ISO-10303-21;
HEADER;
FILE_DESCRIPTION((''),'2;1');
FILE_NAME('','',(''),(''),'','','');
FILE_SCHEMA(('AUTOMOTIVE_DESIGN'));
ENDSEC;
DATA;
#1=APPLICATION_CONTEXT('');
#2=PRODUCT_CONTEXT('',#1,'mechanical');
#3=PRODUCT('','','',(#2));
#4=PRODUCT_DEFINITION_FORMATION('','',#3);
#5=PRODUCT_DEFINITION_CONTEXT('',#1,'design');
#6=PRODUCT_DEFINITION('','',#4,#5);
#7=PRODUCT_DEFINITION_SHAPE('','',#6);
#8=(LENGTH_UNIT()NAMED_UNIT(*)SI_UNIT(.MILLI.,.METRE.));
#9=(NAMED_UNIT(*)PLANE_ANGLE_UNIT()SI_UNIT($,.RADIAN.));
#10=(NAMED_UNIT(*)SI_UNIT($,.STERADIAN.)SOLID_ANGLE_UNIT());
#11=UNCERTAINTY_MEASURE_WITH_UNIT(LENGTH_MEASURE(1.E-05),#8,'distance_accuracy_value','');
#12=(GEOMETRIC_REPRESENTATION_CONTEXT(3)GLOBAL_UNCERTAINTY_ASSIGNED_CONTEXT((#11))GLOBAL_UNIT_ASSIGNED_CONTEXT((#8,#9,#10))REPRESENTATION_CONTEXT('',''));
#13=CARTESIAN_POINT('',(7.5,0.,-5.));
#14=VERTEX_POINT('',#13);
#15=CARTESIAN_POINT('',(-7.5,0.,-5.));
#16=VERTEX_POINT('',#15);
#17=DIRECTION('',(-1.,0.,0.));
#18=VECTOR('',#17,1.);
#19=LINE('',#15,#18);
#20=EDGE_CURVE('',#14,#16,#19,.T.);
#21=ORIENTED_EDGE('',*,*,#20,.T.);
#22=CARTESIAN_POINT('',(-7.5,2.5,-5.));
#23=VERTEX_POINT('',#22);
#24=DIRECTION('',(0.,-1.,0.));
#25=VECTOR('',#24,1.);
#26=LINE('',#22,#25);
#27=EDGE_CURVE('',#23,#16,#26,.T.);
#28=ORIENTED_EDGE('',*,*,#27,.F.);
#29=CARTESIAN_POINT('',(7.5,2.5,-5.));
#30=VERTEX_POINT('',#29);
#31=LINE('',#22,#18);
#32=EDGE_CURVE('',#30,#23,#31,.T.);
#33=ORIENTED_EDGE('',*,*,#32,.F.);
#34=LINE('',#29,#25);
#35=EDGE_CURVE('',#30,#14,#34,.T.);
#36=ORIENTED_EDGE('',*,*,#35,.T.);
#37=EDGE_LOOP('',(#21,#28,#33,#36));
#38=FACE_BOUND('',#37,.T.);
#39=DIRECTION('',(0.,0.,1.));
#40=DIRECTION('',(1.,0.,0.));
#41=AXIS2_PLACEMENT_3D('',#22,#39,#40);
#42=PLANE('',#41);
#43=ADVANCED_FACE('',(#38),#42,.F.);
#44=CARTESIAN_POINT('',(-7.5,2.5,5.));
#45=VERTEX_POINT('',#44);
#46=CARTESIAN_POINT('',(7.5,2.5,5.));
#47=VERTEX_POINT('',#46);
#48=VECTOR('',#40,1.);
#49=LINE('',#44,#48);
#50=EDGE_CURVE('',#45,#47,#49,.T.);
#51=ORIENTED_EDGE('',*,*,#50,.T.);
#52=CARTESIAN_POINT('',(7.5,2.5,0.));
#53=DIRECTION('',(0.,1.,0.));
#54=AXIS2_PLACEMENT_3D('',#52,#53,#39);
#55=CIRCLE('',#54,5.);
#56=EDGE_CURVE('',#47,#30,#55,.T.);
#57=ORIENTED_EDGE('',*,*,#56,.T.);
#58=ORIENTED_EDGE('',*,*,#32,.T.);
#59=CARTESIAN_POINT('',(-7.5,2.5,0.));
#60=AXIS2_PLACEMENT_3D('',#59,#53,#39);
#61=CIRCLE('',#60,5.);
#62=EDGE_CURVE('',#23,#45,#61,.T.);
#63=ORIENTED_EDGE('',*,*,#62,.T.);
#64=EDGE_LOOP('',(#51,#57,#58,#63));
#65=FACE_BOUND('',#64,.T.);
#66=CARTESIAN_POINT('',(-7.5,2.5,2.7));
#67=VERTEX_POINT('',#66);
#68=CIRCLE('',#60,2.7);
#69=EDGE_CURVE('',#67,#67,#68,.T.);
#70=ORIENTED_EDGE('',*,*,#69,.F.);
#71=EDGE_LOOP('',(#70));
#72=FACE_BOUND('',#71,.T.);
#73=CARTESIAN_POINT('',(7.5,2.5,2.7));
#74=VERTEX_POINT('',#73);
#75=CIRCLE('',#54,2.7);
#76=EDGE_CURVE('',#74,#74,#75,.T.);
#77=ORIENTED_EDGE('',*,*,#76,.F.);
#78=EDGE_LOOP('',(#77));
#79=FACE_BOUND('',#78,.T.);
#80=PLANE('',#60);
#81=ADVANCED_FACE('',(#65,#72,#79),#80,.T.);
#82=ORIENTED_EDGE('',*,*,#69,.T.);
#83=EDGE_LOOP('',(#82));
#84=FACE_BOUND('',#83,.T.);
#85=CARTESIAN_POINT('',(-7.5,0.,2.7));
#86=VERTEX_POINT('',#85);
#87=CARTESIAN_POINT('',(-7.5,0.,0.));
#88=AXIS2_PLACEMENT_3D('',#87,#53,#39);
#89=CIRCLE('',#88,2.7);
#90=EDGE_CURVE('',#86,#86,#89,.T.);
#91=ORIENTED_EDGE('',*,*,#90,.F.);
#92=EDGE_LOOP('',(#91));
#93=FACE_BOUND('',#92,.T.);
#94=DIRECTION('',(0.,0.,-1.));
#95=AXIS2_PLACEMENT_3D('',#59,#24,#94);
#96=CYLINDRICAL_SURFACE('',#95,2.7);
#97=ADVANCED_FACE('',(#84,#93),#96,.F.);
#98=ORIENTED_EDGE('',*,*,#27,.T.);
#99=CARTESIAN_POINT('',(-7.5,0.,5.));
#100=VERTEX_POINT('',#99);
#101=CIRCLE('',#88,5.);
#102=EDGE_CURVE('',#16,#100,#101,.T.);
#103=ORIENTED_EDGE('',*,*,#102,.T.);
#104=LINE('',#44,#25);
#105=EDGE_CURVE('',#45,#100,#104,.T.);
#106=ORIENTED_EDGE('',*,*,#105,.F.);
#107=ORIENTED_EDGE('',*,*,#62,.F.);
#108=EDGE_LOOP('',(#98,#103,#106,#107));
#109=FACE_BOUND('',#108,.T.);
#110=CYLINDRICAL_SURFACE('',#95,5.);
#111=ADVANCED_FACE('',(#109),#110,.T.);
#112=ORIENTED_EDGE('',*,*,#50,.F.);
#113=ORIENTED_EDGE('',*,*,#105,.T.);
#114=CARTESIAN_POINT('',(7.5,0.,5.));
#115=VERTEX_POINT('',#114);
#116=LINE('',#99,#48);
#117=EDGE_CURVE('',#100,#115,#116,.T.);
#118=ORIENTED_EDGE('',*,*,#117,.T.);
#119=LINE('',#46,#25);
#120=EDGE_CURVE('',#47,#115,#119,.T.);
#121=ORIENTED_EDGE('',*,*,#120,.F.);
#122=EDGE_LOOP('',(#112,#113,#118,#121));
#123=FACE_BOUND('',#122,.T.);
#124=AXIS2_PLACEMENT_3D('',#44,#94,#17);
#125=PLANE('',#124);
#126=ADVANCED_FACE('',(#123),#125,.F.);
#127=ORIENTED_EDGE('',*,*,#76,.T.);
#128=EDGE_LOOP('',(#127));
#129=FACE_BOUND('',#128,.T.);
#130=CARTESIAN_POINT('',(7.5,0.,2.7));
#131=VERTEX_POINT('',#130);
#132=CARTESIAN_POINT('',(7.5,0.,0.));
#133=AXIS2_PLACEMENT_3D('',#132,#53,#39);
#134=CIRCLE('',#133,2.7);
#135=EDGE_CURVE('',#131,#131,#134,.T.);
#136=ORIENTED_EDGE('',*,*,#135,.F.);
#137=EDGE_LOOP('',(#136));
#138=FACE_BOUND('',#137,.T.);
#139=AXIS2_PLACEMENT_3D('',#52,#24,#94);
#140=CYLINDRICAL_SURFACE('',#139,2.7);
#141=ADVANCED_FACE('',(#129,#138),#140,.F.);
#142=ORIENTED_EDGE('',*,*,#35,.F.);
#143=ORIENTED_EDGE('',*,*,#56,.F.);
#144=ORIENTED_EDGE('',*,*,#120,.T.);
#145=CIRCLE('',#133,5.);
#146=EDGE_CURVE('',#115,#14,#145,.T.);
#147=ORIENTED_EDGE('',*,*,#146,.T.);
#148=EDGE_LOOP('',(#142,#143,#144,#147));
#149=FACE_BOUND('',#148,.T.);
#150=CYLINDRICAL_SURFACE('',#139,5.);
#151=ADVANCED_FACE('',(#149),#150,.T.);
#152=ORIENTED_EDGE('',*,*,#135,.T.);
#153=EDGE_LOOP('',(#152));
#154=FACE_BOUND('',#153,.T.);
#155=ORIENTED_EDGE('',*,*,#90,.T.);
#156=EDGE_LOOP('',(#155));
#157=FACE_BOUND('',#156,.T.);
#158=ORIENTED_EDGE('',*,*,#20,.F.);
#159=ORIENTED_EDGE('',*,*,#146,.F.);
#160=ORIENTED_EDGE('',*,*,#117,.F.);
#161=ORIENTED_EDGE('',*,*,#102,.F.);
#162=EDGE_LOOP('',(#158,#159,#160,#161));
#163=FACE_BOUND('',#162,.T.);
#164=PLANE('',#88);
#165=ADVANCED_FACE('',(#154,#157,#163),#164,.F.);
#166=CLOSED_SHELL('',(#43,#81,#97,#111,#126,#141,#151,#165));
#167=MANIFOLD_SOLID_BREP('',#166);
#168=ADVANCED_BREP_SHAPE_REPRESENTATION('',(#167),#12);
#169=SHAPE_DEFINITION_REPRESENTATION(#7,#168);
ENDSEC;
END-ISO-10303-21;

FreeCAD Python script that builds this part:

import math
import FreeCAD as App
import Part
import Sketcher

doc = App.newDocument("Part")
params = doc.addObject("Spreadsheet::Sheet", "Params")
for row, (alias, value) in enumerate([
    ("sketch1_radius", "5 mm"),
    ("sketch1_diameter", "5.4 mm"),
    ("sketch1_width", "15 mm"),
    ("pad1_length", "2.5 mm"),
], start=1):
    params.set(f"A{row}", alias)
    params.set(f"B{row}", "=" + value)
    params.setAlias(f"B{row}", alias)

body = doc.addObject("PartDesign::Body", "Body")

# Sketch on XZ plane
sketch1 = doc.addObject("Sketcher::SketchObject", "Sketch")
body.addObject(sketch1)
sketch1.AttachmentSupport = (doc.XZ_Plane, [""])
sketch1.MapMode = "FlatFace"
sketch1.addGeometry(Part.LineSegment(App.Vector(7.5, -5, 0), App.Vector(-7.5, -5, 0)), False)
sketch1.addGeometry(Part.ArcOfCircle(Part.Circle(App.Vector(-7.5, 0, 0), App.Vector(0, 0, 1), 5), math.radians(90), math.radians(270)), False)
sketch1.addGeometry(Part.LineSegment(App.Vector(-7.5, 5, 0), App.Vector(7.5, 5, 0)), False)
sketch1.addGeometry(Part.ArcOfCircle(Part.Circle(App.Vector(7.5, 0, 0), App.Vector(0, 0, 1), 5), math.radians(-90), math.radians(90)), False)
sketch1.addGeometry(Part.Circle(App.Vector(7.5, 0, 0), App.Vector(0, 0, 1), 2.7), False)
sketch1.addGeometry(Part.Circle(App.Vector(-7.5, 0, 0), App.Vector(0, 0, 1), 2.7), False)
sketch1.addConstraint(Sketcher.Constraint("Tangent", 0, 2, 1, 2))
sketch1.addConstraint(Sketcher.Constraint("Tangent", 1, 1, 2, 1))
sketch1.addConstraint(Sketcher.Constraint("Tangent", 2, 2, 3, 2))
sketch1.addConstraint(Sketcher.Constraint("Tangent", 3, 1, 0, 1))
sketch1.addConstraint(Sketcher.Constraint("Horizontal", 0))
sketch1.addConstraint(Sketcher.Constraint("Horizontal", 2))
sketch1.addConstraint(Sketcher.Constraint("Coincident", 4, 3, 3, 3))
sketch1.addConstraint(Sketcher.Constraint("Coincident", 5, 3, 1, 3))
sketch1.addConstraint(Sketcher.Constraint("Equal", 4, 5))
sketch1.addConstraint(Sketcher.Constraint("Symmetric", 1, 3, 3, 3, -1, 1))
sketch1.addConstraint(Sketcher.Constraint("Radius", 1, 5.0))
sketch1.addConstraint(Sketcher.Constraint("Diameter", 4, 5.4))
sketch1.addConstraint(Sketcher.Constraint("DistanceX", 0, 2, 0, 1, 15.0))
sketch1.setExpression("Constraints[10]", "Params.sketch1_radius")
sketch1.setExpression("Constraints[11]", "Params.sketch1_diameter")
sketch1.setExpression("Constraints[12]", "Params.sketch1_width")
pad1 = doc.addObject("PartDesign::Pad", "Pad")
body.addObject(pad1)
pad1.Profile = sketch1
pad1.setExpression("Length", "Params.pad1_length")
pad1.Reversed = True

doc.recompute()
